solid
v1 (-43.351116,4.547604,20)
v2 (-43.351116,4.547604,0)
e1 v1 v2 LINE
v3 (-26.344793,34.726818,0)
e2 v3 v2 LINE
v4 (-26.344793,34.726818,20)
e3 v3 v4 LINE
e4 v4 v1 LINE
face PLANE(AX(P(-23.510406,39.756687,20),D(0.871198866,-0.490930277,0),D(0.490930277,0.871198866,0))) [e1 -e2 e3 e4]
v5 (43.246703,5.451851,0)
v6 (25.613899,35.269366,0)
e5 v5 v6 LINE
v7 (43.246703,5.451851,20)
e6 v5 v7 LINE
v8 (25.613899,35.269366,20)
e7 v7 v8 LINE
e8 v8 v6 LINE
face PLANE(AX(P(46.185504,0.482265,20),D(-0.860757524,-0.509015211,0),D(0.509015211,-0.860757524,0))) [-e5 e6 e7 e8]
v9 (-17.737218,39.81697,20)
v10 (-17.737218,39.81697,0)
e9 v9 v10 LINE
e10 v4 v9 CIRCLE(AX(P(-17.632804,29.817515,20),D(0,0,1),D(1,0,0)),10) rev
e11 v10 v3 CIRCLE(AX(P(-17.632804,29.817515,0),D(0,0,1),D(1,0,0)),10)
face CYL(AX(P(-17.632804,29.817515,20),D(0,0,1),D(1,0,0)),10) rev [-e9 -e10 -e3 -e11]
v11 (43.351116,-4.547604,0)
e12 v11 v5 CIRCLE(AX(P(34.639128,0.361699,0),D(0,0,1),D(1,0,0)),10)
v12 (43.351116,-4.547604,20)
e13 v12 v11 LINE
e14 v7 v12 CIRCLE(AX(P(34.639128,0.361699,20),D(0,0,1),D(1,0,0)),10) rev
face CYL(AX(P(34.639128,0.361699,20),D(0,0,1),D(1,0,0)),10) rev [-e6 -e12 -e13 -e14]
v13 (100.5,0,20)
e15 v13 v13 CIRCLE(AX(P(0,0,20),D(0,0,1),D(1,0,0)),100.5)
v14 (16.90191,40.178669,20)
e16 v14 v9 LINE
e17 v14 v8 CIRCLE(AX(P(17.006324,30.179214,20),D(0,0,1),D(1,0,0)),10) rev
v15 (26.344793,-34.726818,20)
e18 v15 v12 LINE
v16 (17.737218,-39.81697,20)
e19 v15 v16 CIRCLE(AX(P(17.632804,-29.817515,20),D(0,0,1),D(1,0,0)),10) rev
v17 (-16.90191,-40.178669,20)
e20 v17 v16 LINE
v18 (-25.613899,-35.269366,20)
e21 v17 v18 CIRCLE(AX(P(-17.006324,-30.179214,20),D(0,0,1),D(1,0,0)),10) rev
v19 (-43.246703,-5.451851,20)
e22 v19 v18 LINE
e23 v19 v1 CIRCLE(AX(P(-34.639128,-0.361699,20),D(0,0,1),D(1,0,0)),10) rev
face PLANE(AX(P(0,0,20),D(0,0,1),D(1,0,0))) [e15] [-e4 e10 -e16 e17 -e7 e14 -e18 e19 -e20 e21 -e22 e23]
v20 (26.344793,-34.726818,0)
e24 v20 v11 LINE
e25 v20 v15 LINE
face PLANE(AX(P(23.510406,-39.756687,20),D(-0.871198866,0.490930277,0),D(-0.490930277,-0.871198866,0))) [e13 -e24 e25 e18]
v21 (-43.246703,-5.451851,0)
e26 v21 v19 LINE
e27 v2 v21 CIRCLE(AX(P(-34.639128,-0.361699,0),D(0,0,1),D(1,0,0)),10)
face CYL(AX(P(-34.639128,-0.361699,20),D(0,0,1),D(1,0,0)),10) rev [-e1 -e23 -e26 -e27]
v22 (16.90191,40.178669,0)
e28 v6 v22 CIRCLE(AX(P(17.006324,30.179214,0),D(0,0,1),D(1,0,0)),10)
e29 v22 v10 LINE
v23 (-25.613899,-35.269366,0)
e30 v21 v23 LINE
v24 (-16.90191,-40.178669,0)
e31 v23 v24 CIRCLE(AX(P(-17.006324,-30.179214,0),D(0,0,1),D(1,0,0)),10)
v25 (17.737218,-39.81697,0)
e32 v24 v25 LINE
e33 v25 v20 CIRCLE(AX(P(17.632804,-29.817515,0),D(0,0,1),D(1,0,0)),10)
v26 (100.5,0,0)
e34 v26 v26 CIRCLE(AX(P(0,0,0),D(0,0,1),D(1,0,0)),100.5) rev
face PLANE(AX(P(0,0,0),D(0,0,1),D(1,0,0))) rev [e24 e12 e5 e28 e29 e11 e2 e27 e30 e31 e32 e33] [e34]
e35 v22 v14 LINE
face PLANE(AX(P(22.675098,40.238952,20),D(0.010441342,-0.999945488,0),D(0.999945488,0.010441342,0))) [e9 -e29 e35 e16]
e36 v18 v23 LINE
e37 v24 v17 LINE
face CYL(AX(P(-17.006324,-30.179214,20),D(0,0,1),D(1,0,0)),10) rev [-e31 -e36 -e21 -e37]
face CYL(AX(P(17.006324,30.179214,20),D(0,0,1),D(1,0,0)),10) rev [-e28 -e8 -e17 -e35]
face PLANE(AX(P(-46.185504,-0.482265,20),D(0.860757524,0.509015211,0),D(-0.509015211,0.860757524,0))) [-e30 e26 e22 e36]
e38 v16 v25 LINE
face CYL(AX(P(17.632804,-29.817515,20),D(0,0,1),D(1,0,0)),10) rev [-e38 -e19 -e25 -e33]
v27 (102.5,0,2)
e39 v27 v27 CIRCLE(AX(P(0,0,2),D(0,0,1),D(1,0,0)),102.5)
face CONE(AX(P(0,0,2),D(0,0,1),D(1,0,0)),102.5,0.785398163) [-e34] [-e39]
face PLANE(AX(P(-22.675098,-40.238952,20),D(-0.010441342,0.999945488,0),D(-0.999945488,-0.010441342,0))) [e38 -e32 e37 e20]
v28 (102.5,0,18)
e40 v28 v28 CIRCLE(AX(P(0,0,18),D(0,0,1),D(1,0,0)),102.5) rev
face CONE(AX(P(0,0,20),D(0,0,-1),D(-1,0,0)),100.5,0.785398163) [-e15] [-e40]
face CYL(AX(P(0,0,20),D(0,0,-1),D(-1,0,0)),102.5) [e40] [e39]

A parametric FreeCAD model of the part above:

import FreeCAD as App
import Part
import Sketcher

V = App.Vector


def edges_at(feature, points):
    """Names of the edges that pass closest to the given points."""
    edges = feature.Shape.Edges
    near = lambda p: min(range(len(edges)), key=lambda i: edges[i].distToShape(Part.Vertex(*p))[0])
    return sorted({f"Edge{near(p) + 1}" for p in points})

doc = App.newDocument("Part")
body = doc.addObject("PartDesign::Body", "Body")

sketch1 = body.newObject("Sketcher::SketchObject", "Sketch")
sketch1.AttachmentSupport = (doc.getObject("XY_Plane"), [""])
sketch1.MapMode = "FlatFace"
sketch1.addGeometry([
    Part.Circle(V(0, 0, 0), V(0, 0, 1), 102.5),
    Part.LineSegment(V(46.185504, 0.482265, 0), V(23.510406, -39.756687, 0)),
    Part.LineSegment(V(23.510406, -39.756687, 0), V(-22.675098, -40.238952, 0)),
    Part.LineSegment(V(-22.675098, -40.238952, 0), V(-46.185504, -0.482265, 0)),
    Part.LineSegment(V(-46.185504, -0.482265, 0), V(-23.510406, 39.756687, 0)),
    Part.LineSegment(V(-23.510406, 39.756687, 0), V(22.675098, 40.238952, 0)),
    Part.LineSegment(V(22.675098, 40.238952, 0), V(46.185504, 0.482265, 0)),
], False)
sketch1.addConstraint([
    Sketcher.Constraint("Coincident", 1, 2, 2, 1),
    Sketcher.Constraint("Coincident", 2, 2, 3, 1),
    Sketcher.Constraint("Coincident", 3, 2, 4, 1),
    Sketcher.Constraint("Coincident", 4, 2, 5, 1),
    Sketcher.Constraint("Coincident", 5, 2, 6, 1),
    Sketcher.Constraint("Coincident", 6, 2, 1, 1),
    Sketcher.Constraint("Coincident", 0, 3, -1, 1),
    Sketcher.Constraint("Symmetric", 1, 2, 4, 2, -1, 1),
    Sketcher.Constraint("Symmetric", 2, 2, 5, 2, -1, 1),
    Sketcher.Constraint("Symmetric", 3, 2, 6, 2, -1, 1),
    Sketcher.Constraint("Equal", 1, 2),
    Sketcher.Constraint("Equal", 2, 3),
    Sketcher.Constraint("Diameter", 0, 205.0),
    Sketcher.Constraint("DistanceX", 2, 2, -1, 1, 22.675098),
    Sketcher.Constraint("DistanceX", 3, 2, 4, 2, 22.675098),
    Sketcher.Constraint("DistanceX", 3, 2, 5, 2, 68.860602),
    Sketcher.Constraint("Distance", 1, 46.188022),
])
pad1 = body.newObject("PartDesign::Pad", "Pad")
pad1.Profile = sketch1
pad1.Length = 20
doc.recompute()

fillet = body.newObject("PartDesign::Fillet", "Fillet")
fillet.Base = (pad1, edges_at(pad1, [
    (23.51, -39.757, 10),
    (46.186, 0.482, 10),
    (22.675, 40.239, 10),
    (-23.51, 39.757, 10),
    (-46.186, -0.482, 10),
    (-22.675, -40.239, 10),
]))
fillet.Radius = 10
doc.recompute()

chamfer = body.newObject("PartDesign::Chamfer", "Chamfer")
chamfer.Base = (fillet, edges_at(fillet, [(-102.5, 0, 0), (-102.5, 0, 20)]))
chamfer.Size = 2

doc.recompute()
